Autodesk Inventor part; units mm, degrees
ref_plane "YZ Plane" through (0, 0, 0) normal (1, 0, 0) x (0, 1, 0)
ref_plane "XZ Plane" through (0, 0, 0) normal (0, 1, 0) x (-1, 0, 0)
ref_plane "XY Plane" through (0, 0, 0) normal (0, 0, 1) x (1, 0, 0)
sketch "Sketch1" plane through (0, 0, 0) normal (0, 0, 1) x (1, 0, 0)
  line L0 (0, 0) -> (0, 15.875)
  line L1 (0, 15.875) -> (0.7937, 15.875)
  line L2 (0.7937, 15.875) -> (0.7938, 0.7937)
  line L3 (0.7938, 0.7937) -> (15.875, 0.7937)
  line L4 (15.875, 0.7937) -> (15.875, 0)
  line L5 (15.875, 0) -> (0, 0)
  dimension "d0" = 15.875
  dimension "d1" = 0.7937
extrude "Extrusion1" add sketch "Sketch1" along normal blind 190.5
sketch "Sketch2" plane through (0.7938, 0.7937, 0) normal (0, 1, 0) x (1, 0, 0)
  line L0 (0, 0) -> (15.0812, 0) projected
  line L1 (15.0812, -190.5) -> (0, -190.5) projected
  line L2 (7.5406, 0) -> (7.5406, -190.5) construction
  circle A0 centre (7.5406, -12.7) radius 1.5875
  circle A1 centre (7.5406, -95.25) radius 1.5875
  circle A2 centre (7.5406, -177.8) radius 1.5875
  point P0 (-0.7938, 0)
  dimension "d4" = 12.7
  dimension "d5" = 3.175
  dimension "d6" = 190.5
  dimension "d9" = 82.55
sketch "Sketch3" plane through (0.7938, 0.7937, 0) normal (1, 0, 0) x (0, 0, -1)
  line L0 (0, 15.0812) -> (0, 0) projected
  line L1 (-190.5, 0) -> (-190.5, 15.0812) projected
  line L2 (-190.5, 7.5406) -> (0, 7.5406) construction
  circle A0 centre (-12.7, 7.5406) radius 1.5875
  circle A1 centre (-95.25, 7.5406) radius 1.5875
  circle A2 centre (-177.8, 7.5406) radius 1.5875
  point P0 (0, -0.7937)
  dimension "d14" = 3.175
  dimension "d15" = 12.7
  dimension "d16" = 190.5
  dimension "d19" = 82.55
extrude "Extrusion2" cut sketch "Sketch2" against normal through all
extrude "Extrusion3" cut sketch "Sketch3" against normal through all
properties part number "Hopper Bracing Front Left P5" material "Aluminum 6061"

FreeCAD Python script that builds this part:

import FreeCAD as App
import Part
import Sketcher
Q = App.Units.Quantity

doc = App.newDocument("Part")
params = doc.addObject("Spreadsheet::Sheet", "Params")
for row, (alias, value) in enumerate([
    ("sketch1_width", "0.625 in"),
    ("sketch1_width2", "0.031248 in"),
    ("pad1_length", "7.5 in"),
    ("sketch2_diameter", "0.125 in"),
    ("sketch3_diameter", "0.125 in"),
], start=1):
    params.set(f"A{row}", alias)
    params.set(f"B{row}", "=" + value)
    params.setAlias(f"B{row}", alias)

body = doc.addObject("PartDesign::Body", "Body")

# Sketch on XY plane
sketch1 = doc.addObject("Sketcher::SketchObject", "Sketch")
body.addObject(sketch1)
sketch1.AttachmentSupport = (doc.XY_Plane, [""])
sketch1.MapMode = "FlatFace"
sketch1.addGeometry([
    Part.LineSegment(App.Vector(0, 15.9, 0), App.Vector(0, 0, 0)),  # 0
    Part.LineSegment(App.Vector(0, 0, 0), App.Vector(15.9, 0, 0)),  # 1
    Part.LineSegment(App.Vector(15.9, 0, 0), App.Vector(15.9, 0.8, 0)),  # 2
    Part.LineSegment(App.Vector(15.9, 0.8, 0), App.Vector(0.8, 0.8, 0)),  # 3
    Part.LineSegment(App.Vector(0.8, 0.8, 0), App.Vector(0.8, 15.9, 0)),  # 4
    Part.LineSegment(App.Vector(0.8, 15.9, 0), App.Vector(0, 15.9, 0)),  # 5
], False)
sketch1.addConstraint([
    Sketcher.Constraint("Coincident", 0, 2, 1, 1),
    Sketcher.Constraint("Coincident", 1, 2, 2, 1),
    Sketcher.Constraint("Coincident", 2, 2, 3, 1),
    Sketcher.Constraint("Coincident", 3, 2, 4, 1),
    Sketcher.Constraint("Coincident", 4, 2, 5, 1),
    Sketcher.Constraint("Coincident", 5, 2, 0, 1),
    Sketcher.Constraint("Vertical", 0),
    Sketcher.Constraint("Horizontal", 1),
    Sketcher.Constraint("Vertical", 2),
    Sketcher.Constraint("Horizontal", 3),
    Sketcher.Constraint("Vertical", 4),
    Sketcher.Constraint("Horizontal", 5),
    Sketcher.Constraint("Coincident", 0, 2, -1, 1),
    Sketcher.Constraint("Equal", 1, 0),
    Sketcher.Constraint("Equal", 5, 2),
    Sketcher.Constraint("DistanceX", 1, 1, 1, 2, Q("0.625 in")),
    Sketcher.Constraint("DistanceX", 5, 2, 5, 1, Q("0.031248 in")),
])
sketch1.setExpression("Constraints[15]", "Params.sketch1_width")
sketch1.setExpression("Constraints[16]", "Params.sketch1_width2")
pad1 = doc.addObject("PartDesign::Pad", "Pad")
body.addObject(pad1)
pad1.Profile = sketch1
pad1.setExpression("Length", "Params.pad1_length")

# Sketch on XZ plane
sketch2 = doc.addObject("Sketcher::SketchObject", "Sketch001")
body.addObject(sketch2)
sketch2.AttachmentSupport = (doc.XZ_Plane, [""])
sketch2.MapMode = "FlatFace"
sketch2.AttachmentOffset = App.Placement(App.Vector(0, 0, -0.031248 * 25.4), App.Rotation())
sketch2.addGeometry([
    Part.Circle(App.Vector(8.3, 12.7, 0), App.Vector(0, 0, 1), 1.6),
    Part.Circle(App.Vector(8.3, 95.2, 0), App.Vector(0, 0, 1), 1.6),
    Part.Circle(App.Vector(8.3, 177.8, 0), App.Vector(0, 0, 1), 1.6),
], False)
sketch2.addConstraint([
    Sketcher.Constraint("Equal", 0, 1),
    Sketcher.Constraint("Equal", 1, 2),
    Sketcher.Constraint("Vertical", 0, 3, 1, 3),
    Sketcher.Constraint("Vertical", 1, 3, 2, 3),
    Sketcher.Constraint("Diameter", 0, Q("0.125 in")),
    Sketcher.Constraint("DistanceY", -1, 1, 0, 3, Q("0.5 in")),
    Sketcher.Constraint("DistanceY", 0, 3, 1, 3, Q("3.25 in")),
    Sketcher.Constraint("DistanceY", 1, 3, 2, 3, Q("3.25 in")),
    Sketcher.Constraint("DistanceX", -1, 1, 0, 3, Q("0.328126 in")),
])
sketch2.setExpression("Constraints[4]", "Params.sketch2_diameter")
pocket1 = doc.addObject("PartDesign::Pocket", "Pocket")
body.addObject(pocket1)
pocket1.Profile = sketch2
pocket1.Type = "ThroughAll"
pocket1.Reversed = True

# Sketch on YZ plane
sketch3 = doc.addObject("Sketcher::SketchObject", "Sketch002")
body.addObject(sketch3)
sketch3.AttachmentSupport = (doc.YZ_Plane, [""])
sketch3.MapMode = "FlatFace"
sketch3.AttachmentOffset = App.Placement(App.Vector(0, 0, 0.031252 * 25.4), App.Rotation())
sketch3.addGeometry([
    Part.Circle(App.Vector(8.3, 12.7, 0), App.Vector(0, 0, 1), 1.6),
    Part.Circle(App.Vector(8.3, 95.2, 0), App.Vector(0, 0, 1), 1.6),
    Part.Circle(App.Vector(8.3, 177.8, 0), App.Vector(0, 0, 1), 1.6),
], False)
sketch3.addConstraint([
    Sketcher.Constraint("Equal", 0, 1),
    Sketcher.Constraint("Equal", 1, 2),
    Sketcher.Constraint("Vertical", 0, 3, 1, 3),
    Sketcher.Constraint("Vertical", 1, 3, 2, 3),
    Sketcher.Constraint("Diameter", 0, Q("0.125 in")),
    Sketcher.Constraint("DistanceY", -1, 1, 0, 3, Q("0.5 in")),
    Sketcher.Constraint("DistanceY", 0, 3, 1, 3, Q("3.25 in")),
    Sketcher.Constraint("DistanceY", 1, 3, 2, 3, Q("3.25 in")),
    Sketcher.Constraint("DistanceX", -1, 1, 0, 3, Q("0.328122 in")),
])
sketch3.setExpression("Constraints[4]", "Params.sketch3_diameter")
pocket2 = doc.addObject("PartDesign::Pocket", "Pocket001")
body.addObject(pocket2)
pocket2.Profile = sketch3
pocket2.Type = "ThroughAll"

doc.recompute()
